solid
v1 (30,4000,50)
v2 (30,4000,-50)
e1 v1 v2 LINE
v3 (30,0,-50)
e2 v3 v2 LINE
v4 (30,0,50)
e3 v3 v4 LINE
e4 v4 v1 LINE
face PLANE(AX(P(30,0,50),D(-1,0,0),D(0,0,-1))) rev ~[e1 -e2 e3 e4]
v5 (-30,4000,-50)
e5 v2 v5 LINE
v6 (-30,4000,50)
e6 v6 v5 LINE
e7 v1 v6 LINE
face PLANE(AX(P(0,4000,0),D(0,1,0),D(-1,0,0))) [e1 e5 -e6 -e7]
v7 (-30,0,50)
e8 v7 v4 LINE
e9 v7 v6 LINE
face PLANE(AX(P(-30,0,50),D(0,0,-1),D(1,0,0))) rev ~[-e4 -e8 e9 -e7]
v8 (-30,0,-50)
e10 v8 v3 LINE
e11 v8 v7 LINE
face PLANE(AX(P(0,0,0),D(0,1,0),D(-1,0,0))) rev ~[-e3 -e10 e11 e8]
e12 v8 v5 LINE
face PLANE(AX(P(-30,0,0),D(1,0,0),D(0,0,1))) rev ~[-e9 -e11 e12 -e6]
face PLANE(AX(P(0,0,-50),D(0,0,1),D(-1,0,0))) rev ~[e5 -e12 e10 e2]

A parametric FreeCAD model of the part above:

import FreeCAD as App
import Part
import Sketcher
from FreeCAD import Vector
Q = App.Units.Quantity


def add_polygon(sketch, points):
    """Adds a closed chain of lines whose ends are joined by coincident constraints."""
    first, n = sketch.GeometryCount, len(points)
    for a, b in zip(points, points[1:] + points[:1]):
        sketch.addGeometry(Part.LineSegment(App.Vector(*a, 0), App.Vector(*b, 0)), False)
    for i in range(n):
        sketch.addConstraint(Sketcher.Constraint("Coincident", first + i, 2, first + (i + 1) % n, 1))

doc = App.newDocument("Part")
body = doc.addObject("PartDesign::Body", "Body")

# Sketch on XZ plane
sketch1 = doc.addObject("Sketcher::SketchObject", "Sketch")
body.addObject(sketch1)
sketch1.AttachmentSupport = (doc.XZ_Plane, [""])
sketch1.MapMode = "FlatFace"
add_polygon(sketch1, [(-30, 50), (30, 50), (30, -50), (-30, -50)])  # lines 0-3
sketch1.addConstraint([
    Sketcher.Constraint("Horizontal", 0),
    Sketcher.Constraint("Vertical", 1),
    Sketcher.Constraint("Horizontal", 2),
    Sketcher.Constraint("Vertical", 3),
    Sketcher.Constraint("Symmetric", 0, 2, 2, 2, -1, 1),
    Sketcher.Constraint("DistanceX", 0, 1, 0, 2, Q("60 mm")),
    Sketcher.Constraint("DistanceY", 1, 2, 1, 1, Q("100 mm")),
])
pad1 = doc.addObject("PartDesign::Pad", "Pad")
body.addObject(pad1)
pad1.Profile = sketch1
pad1.Length = 4000
pad1.Reversed = True

doc.recompute()
